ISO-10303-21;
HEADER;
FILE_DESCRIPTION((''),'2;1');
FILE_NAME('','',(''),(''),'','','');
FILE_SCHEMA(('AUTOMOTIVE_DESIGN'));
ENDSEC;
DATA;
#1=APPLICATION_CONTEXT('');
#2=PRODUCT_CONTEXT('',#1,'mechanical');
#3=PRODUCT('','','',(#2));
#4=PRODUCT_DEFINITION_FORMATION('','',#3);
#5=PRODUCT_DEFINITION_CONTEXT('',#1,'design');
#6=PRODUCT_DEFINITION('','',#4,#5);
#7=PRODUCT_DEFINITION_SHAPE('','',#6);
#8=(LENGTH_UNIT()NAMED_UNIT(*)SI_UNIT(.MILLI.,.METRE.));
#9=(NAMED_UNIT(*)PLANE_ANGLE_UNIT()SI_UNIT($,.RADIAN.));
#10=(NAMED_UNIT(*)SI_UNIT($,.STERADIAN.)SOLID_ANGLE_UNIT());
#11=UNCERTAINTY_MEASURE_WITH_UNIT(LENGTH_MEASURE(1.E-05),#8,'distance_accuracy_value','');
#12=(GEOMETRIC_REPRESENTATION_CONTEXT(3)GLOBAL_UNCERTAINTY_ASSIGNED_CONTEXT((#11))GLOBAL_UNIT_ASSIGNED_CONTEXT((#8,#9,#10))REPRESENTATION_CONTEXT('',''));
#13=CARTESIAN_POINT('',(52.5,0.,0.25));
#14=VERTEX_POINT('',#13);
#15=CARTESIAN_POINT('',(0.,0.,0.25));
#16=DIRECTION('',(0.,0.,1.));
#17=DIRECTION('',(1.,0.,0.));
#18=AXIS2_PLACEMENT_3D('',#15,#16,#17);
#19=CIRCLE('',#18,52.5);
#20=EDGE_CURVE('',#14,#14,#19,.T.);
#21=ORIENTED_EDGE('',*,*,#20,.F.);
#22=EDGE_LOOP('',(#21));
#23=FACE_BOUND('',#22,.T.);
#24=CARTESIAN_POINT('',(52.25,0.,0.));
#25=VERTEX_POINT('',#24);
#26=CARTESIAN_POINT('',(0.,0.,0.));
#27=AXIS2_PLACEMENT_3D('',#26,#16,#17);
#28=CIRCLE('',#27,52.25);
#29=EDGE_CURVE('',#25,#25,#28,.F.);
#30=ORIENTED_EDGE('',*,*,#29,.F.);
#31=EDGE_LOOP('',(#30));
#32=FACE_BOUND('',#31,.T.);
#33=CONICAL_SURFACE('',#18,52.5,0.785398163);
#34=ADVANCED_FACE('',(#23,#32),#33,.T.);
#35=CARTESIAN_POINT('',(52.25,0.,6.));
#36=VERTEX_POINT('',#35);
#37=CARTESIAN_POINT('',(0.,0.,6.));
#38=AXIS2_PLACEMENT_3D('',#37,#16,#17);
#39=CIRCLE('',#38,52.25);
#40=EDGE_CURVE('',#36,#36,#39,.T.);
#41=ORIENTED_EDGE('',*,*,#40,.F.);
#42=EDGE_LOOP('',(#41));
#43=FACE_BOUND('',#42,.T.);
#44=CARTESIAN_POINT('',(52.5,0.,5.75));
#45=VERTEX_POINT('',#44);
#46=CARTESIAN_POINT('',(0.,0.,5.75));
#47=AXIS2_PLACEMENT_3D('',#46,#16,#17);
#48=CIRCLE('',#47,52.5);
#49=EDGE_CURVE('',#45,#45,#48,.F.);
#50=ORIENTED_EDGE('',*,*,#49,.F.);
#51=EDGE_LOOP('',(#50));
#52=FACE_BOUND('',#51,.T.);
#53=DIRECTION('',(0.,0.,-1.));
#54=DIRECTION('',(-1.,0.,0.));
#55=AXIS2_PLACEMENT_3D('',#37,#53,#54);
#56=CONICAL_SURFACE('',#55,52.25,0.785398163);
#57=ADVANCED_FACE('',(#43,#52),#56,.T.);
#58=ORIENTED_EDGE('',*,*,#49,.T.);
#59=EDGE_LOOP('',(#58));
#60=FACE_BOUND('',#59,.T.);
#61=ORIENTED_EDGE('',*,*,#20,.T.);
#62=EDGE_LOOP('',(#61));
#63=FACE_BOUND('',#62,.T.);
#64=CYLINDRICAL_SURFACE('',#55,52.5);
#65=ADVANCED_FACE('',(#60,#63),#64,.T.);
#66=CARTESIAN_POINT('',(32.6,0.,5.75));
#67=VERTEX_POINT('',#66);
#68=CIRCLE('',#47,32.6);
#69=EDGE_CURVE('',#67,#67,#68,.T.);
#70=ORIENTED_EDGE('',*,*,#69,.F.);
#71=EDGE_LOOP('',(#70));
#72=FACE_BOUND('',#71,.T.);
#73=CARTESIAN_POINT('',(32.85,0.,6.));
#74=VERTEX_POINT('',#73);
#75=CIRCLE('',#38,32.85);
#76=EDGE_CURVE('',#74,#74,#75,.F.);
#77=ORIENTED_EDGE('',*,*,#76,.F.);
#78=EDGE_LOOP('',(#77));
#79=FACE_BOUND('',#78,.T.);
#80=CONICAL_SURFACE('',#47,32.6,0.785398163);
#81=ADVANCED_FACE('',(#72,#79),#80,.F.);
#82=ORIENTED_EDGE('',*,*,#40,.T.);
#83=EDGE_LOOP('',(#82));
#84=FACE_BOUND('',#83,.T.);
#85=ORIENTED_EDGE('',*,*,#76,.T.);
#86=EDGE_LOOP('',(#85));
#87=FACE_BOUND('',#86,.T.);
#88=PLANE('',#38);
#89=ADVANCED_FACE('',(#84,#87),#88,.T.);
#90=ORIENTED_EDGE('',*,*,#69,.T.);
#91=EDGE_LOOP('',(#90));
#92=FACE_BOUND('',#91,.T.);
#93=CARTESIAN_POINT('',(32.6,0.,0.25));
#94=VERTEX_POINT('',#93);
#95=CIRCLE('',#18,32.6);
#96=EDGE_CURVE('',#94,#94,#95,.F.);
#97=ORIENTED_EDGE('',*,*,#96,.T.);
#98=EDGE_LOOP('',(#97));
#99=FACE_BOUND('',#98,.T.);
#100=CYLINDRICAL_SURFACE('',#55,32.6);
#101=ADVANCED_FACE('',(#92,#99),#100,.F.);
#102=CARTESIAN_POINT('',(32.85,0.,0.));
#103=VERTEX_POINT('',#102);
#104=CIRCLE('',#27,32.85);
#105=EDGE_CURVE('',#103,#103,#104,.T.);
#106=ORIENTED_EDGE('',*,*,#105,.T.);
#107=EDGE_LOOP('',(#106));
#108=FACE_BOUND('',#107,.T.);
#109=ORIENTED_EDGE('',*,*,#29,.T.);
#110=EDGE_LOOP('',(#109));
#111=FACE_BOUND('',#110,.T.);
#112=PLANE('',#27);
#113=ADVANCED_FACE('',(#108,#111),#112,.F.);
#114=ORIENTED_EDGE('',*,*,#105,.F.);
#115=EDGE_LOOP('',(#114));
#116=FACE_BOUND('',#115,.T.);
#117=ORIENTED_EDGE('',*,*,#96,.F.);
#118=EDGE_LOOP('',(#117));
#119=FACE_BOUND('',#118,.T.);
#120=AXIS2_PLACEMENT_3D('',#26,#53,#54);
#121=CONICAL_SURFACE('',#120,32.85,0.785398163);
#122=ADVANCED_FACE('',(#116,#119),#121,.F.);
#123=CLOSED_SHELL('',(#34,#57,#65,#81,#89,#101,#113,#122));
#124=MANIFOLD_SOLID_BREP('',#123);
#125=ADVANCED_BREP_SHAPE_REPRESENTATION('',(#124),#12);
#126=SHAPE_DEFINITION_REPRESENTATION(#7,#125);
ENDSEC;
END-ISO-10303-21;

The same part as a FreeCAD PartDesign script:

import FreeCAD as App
import Part
import Sketcher
from FreeCAD import Vector
Q = App.Units.Quantity


def edges_at(feature, points):
    """Names of the edges that pass closest to the given points."""
    edges = feature.Shape.Edges
    near = lambda p: min(range(len(edges)), key=lambda i: edges[i].distToShape(Part.Vertex(*p))[0])
    return sorted({f"Edge{near(p) + 1}" for p in points})

doc = App.newDocument("Part")
body = doc.addObject("PartDesign::Body", "Body")

# Sketch on XY plane
sketch1 = body.newObject("Sketcher::SketchObject", "Sketch")
sketch1.AttachmentSupport = (doc.getObject("XY_Plane"), [""])
sketch1.MapMode = "FlatFace"
sketch1.addGeometry([
    Part.Circle(Vector(0, 0, 0), Vector(0, 0, 1), 52),
    Part.Circle(Vector(0, 0, 0), Vector(0, 0, 1), 33),
], False)
sketch1.addConstraint([
    Sketcher.Constraint("Coincident", 0, 3, -1, 1),
    Sketcher.Constraint("Coincident", 1, 3, -1, 1),
    Sketcher.Constraint("Diameter", 0, Q("105 mm")),
    Sketcher.Constraint("Diameter", 1, Q("65.2 mm")),
])
pad1 = body.newObject("PartDesign::Pad", "Pad")
pad1.Profile = sketch1
pad1.Length = 6
doc.recompute()

chamfer = body.newObject("PartDesign::Chamfer", "Chamfer")
chamfer.Base = (pad1, edges_at(pad1, [
    (-52.5, 0, 0),
    (-52.5, 0, 6),
    (-32.6, 0, 0),
    (-32.6, 0, 6),
]))
chamfer.Size = 0.25

doc.recompute()
